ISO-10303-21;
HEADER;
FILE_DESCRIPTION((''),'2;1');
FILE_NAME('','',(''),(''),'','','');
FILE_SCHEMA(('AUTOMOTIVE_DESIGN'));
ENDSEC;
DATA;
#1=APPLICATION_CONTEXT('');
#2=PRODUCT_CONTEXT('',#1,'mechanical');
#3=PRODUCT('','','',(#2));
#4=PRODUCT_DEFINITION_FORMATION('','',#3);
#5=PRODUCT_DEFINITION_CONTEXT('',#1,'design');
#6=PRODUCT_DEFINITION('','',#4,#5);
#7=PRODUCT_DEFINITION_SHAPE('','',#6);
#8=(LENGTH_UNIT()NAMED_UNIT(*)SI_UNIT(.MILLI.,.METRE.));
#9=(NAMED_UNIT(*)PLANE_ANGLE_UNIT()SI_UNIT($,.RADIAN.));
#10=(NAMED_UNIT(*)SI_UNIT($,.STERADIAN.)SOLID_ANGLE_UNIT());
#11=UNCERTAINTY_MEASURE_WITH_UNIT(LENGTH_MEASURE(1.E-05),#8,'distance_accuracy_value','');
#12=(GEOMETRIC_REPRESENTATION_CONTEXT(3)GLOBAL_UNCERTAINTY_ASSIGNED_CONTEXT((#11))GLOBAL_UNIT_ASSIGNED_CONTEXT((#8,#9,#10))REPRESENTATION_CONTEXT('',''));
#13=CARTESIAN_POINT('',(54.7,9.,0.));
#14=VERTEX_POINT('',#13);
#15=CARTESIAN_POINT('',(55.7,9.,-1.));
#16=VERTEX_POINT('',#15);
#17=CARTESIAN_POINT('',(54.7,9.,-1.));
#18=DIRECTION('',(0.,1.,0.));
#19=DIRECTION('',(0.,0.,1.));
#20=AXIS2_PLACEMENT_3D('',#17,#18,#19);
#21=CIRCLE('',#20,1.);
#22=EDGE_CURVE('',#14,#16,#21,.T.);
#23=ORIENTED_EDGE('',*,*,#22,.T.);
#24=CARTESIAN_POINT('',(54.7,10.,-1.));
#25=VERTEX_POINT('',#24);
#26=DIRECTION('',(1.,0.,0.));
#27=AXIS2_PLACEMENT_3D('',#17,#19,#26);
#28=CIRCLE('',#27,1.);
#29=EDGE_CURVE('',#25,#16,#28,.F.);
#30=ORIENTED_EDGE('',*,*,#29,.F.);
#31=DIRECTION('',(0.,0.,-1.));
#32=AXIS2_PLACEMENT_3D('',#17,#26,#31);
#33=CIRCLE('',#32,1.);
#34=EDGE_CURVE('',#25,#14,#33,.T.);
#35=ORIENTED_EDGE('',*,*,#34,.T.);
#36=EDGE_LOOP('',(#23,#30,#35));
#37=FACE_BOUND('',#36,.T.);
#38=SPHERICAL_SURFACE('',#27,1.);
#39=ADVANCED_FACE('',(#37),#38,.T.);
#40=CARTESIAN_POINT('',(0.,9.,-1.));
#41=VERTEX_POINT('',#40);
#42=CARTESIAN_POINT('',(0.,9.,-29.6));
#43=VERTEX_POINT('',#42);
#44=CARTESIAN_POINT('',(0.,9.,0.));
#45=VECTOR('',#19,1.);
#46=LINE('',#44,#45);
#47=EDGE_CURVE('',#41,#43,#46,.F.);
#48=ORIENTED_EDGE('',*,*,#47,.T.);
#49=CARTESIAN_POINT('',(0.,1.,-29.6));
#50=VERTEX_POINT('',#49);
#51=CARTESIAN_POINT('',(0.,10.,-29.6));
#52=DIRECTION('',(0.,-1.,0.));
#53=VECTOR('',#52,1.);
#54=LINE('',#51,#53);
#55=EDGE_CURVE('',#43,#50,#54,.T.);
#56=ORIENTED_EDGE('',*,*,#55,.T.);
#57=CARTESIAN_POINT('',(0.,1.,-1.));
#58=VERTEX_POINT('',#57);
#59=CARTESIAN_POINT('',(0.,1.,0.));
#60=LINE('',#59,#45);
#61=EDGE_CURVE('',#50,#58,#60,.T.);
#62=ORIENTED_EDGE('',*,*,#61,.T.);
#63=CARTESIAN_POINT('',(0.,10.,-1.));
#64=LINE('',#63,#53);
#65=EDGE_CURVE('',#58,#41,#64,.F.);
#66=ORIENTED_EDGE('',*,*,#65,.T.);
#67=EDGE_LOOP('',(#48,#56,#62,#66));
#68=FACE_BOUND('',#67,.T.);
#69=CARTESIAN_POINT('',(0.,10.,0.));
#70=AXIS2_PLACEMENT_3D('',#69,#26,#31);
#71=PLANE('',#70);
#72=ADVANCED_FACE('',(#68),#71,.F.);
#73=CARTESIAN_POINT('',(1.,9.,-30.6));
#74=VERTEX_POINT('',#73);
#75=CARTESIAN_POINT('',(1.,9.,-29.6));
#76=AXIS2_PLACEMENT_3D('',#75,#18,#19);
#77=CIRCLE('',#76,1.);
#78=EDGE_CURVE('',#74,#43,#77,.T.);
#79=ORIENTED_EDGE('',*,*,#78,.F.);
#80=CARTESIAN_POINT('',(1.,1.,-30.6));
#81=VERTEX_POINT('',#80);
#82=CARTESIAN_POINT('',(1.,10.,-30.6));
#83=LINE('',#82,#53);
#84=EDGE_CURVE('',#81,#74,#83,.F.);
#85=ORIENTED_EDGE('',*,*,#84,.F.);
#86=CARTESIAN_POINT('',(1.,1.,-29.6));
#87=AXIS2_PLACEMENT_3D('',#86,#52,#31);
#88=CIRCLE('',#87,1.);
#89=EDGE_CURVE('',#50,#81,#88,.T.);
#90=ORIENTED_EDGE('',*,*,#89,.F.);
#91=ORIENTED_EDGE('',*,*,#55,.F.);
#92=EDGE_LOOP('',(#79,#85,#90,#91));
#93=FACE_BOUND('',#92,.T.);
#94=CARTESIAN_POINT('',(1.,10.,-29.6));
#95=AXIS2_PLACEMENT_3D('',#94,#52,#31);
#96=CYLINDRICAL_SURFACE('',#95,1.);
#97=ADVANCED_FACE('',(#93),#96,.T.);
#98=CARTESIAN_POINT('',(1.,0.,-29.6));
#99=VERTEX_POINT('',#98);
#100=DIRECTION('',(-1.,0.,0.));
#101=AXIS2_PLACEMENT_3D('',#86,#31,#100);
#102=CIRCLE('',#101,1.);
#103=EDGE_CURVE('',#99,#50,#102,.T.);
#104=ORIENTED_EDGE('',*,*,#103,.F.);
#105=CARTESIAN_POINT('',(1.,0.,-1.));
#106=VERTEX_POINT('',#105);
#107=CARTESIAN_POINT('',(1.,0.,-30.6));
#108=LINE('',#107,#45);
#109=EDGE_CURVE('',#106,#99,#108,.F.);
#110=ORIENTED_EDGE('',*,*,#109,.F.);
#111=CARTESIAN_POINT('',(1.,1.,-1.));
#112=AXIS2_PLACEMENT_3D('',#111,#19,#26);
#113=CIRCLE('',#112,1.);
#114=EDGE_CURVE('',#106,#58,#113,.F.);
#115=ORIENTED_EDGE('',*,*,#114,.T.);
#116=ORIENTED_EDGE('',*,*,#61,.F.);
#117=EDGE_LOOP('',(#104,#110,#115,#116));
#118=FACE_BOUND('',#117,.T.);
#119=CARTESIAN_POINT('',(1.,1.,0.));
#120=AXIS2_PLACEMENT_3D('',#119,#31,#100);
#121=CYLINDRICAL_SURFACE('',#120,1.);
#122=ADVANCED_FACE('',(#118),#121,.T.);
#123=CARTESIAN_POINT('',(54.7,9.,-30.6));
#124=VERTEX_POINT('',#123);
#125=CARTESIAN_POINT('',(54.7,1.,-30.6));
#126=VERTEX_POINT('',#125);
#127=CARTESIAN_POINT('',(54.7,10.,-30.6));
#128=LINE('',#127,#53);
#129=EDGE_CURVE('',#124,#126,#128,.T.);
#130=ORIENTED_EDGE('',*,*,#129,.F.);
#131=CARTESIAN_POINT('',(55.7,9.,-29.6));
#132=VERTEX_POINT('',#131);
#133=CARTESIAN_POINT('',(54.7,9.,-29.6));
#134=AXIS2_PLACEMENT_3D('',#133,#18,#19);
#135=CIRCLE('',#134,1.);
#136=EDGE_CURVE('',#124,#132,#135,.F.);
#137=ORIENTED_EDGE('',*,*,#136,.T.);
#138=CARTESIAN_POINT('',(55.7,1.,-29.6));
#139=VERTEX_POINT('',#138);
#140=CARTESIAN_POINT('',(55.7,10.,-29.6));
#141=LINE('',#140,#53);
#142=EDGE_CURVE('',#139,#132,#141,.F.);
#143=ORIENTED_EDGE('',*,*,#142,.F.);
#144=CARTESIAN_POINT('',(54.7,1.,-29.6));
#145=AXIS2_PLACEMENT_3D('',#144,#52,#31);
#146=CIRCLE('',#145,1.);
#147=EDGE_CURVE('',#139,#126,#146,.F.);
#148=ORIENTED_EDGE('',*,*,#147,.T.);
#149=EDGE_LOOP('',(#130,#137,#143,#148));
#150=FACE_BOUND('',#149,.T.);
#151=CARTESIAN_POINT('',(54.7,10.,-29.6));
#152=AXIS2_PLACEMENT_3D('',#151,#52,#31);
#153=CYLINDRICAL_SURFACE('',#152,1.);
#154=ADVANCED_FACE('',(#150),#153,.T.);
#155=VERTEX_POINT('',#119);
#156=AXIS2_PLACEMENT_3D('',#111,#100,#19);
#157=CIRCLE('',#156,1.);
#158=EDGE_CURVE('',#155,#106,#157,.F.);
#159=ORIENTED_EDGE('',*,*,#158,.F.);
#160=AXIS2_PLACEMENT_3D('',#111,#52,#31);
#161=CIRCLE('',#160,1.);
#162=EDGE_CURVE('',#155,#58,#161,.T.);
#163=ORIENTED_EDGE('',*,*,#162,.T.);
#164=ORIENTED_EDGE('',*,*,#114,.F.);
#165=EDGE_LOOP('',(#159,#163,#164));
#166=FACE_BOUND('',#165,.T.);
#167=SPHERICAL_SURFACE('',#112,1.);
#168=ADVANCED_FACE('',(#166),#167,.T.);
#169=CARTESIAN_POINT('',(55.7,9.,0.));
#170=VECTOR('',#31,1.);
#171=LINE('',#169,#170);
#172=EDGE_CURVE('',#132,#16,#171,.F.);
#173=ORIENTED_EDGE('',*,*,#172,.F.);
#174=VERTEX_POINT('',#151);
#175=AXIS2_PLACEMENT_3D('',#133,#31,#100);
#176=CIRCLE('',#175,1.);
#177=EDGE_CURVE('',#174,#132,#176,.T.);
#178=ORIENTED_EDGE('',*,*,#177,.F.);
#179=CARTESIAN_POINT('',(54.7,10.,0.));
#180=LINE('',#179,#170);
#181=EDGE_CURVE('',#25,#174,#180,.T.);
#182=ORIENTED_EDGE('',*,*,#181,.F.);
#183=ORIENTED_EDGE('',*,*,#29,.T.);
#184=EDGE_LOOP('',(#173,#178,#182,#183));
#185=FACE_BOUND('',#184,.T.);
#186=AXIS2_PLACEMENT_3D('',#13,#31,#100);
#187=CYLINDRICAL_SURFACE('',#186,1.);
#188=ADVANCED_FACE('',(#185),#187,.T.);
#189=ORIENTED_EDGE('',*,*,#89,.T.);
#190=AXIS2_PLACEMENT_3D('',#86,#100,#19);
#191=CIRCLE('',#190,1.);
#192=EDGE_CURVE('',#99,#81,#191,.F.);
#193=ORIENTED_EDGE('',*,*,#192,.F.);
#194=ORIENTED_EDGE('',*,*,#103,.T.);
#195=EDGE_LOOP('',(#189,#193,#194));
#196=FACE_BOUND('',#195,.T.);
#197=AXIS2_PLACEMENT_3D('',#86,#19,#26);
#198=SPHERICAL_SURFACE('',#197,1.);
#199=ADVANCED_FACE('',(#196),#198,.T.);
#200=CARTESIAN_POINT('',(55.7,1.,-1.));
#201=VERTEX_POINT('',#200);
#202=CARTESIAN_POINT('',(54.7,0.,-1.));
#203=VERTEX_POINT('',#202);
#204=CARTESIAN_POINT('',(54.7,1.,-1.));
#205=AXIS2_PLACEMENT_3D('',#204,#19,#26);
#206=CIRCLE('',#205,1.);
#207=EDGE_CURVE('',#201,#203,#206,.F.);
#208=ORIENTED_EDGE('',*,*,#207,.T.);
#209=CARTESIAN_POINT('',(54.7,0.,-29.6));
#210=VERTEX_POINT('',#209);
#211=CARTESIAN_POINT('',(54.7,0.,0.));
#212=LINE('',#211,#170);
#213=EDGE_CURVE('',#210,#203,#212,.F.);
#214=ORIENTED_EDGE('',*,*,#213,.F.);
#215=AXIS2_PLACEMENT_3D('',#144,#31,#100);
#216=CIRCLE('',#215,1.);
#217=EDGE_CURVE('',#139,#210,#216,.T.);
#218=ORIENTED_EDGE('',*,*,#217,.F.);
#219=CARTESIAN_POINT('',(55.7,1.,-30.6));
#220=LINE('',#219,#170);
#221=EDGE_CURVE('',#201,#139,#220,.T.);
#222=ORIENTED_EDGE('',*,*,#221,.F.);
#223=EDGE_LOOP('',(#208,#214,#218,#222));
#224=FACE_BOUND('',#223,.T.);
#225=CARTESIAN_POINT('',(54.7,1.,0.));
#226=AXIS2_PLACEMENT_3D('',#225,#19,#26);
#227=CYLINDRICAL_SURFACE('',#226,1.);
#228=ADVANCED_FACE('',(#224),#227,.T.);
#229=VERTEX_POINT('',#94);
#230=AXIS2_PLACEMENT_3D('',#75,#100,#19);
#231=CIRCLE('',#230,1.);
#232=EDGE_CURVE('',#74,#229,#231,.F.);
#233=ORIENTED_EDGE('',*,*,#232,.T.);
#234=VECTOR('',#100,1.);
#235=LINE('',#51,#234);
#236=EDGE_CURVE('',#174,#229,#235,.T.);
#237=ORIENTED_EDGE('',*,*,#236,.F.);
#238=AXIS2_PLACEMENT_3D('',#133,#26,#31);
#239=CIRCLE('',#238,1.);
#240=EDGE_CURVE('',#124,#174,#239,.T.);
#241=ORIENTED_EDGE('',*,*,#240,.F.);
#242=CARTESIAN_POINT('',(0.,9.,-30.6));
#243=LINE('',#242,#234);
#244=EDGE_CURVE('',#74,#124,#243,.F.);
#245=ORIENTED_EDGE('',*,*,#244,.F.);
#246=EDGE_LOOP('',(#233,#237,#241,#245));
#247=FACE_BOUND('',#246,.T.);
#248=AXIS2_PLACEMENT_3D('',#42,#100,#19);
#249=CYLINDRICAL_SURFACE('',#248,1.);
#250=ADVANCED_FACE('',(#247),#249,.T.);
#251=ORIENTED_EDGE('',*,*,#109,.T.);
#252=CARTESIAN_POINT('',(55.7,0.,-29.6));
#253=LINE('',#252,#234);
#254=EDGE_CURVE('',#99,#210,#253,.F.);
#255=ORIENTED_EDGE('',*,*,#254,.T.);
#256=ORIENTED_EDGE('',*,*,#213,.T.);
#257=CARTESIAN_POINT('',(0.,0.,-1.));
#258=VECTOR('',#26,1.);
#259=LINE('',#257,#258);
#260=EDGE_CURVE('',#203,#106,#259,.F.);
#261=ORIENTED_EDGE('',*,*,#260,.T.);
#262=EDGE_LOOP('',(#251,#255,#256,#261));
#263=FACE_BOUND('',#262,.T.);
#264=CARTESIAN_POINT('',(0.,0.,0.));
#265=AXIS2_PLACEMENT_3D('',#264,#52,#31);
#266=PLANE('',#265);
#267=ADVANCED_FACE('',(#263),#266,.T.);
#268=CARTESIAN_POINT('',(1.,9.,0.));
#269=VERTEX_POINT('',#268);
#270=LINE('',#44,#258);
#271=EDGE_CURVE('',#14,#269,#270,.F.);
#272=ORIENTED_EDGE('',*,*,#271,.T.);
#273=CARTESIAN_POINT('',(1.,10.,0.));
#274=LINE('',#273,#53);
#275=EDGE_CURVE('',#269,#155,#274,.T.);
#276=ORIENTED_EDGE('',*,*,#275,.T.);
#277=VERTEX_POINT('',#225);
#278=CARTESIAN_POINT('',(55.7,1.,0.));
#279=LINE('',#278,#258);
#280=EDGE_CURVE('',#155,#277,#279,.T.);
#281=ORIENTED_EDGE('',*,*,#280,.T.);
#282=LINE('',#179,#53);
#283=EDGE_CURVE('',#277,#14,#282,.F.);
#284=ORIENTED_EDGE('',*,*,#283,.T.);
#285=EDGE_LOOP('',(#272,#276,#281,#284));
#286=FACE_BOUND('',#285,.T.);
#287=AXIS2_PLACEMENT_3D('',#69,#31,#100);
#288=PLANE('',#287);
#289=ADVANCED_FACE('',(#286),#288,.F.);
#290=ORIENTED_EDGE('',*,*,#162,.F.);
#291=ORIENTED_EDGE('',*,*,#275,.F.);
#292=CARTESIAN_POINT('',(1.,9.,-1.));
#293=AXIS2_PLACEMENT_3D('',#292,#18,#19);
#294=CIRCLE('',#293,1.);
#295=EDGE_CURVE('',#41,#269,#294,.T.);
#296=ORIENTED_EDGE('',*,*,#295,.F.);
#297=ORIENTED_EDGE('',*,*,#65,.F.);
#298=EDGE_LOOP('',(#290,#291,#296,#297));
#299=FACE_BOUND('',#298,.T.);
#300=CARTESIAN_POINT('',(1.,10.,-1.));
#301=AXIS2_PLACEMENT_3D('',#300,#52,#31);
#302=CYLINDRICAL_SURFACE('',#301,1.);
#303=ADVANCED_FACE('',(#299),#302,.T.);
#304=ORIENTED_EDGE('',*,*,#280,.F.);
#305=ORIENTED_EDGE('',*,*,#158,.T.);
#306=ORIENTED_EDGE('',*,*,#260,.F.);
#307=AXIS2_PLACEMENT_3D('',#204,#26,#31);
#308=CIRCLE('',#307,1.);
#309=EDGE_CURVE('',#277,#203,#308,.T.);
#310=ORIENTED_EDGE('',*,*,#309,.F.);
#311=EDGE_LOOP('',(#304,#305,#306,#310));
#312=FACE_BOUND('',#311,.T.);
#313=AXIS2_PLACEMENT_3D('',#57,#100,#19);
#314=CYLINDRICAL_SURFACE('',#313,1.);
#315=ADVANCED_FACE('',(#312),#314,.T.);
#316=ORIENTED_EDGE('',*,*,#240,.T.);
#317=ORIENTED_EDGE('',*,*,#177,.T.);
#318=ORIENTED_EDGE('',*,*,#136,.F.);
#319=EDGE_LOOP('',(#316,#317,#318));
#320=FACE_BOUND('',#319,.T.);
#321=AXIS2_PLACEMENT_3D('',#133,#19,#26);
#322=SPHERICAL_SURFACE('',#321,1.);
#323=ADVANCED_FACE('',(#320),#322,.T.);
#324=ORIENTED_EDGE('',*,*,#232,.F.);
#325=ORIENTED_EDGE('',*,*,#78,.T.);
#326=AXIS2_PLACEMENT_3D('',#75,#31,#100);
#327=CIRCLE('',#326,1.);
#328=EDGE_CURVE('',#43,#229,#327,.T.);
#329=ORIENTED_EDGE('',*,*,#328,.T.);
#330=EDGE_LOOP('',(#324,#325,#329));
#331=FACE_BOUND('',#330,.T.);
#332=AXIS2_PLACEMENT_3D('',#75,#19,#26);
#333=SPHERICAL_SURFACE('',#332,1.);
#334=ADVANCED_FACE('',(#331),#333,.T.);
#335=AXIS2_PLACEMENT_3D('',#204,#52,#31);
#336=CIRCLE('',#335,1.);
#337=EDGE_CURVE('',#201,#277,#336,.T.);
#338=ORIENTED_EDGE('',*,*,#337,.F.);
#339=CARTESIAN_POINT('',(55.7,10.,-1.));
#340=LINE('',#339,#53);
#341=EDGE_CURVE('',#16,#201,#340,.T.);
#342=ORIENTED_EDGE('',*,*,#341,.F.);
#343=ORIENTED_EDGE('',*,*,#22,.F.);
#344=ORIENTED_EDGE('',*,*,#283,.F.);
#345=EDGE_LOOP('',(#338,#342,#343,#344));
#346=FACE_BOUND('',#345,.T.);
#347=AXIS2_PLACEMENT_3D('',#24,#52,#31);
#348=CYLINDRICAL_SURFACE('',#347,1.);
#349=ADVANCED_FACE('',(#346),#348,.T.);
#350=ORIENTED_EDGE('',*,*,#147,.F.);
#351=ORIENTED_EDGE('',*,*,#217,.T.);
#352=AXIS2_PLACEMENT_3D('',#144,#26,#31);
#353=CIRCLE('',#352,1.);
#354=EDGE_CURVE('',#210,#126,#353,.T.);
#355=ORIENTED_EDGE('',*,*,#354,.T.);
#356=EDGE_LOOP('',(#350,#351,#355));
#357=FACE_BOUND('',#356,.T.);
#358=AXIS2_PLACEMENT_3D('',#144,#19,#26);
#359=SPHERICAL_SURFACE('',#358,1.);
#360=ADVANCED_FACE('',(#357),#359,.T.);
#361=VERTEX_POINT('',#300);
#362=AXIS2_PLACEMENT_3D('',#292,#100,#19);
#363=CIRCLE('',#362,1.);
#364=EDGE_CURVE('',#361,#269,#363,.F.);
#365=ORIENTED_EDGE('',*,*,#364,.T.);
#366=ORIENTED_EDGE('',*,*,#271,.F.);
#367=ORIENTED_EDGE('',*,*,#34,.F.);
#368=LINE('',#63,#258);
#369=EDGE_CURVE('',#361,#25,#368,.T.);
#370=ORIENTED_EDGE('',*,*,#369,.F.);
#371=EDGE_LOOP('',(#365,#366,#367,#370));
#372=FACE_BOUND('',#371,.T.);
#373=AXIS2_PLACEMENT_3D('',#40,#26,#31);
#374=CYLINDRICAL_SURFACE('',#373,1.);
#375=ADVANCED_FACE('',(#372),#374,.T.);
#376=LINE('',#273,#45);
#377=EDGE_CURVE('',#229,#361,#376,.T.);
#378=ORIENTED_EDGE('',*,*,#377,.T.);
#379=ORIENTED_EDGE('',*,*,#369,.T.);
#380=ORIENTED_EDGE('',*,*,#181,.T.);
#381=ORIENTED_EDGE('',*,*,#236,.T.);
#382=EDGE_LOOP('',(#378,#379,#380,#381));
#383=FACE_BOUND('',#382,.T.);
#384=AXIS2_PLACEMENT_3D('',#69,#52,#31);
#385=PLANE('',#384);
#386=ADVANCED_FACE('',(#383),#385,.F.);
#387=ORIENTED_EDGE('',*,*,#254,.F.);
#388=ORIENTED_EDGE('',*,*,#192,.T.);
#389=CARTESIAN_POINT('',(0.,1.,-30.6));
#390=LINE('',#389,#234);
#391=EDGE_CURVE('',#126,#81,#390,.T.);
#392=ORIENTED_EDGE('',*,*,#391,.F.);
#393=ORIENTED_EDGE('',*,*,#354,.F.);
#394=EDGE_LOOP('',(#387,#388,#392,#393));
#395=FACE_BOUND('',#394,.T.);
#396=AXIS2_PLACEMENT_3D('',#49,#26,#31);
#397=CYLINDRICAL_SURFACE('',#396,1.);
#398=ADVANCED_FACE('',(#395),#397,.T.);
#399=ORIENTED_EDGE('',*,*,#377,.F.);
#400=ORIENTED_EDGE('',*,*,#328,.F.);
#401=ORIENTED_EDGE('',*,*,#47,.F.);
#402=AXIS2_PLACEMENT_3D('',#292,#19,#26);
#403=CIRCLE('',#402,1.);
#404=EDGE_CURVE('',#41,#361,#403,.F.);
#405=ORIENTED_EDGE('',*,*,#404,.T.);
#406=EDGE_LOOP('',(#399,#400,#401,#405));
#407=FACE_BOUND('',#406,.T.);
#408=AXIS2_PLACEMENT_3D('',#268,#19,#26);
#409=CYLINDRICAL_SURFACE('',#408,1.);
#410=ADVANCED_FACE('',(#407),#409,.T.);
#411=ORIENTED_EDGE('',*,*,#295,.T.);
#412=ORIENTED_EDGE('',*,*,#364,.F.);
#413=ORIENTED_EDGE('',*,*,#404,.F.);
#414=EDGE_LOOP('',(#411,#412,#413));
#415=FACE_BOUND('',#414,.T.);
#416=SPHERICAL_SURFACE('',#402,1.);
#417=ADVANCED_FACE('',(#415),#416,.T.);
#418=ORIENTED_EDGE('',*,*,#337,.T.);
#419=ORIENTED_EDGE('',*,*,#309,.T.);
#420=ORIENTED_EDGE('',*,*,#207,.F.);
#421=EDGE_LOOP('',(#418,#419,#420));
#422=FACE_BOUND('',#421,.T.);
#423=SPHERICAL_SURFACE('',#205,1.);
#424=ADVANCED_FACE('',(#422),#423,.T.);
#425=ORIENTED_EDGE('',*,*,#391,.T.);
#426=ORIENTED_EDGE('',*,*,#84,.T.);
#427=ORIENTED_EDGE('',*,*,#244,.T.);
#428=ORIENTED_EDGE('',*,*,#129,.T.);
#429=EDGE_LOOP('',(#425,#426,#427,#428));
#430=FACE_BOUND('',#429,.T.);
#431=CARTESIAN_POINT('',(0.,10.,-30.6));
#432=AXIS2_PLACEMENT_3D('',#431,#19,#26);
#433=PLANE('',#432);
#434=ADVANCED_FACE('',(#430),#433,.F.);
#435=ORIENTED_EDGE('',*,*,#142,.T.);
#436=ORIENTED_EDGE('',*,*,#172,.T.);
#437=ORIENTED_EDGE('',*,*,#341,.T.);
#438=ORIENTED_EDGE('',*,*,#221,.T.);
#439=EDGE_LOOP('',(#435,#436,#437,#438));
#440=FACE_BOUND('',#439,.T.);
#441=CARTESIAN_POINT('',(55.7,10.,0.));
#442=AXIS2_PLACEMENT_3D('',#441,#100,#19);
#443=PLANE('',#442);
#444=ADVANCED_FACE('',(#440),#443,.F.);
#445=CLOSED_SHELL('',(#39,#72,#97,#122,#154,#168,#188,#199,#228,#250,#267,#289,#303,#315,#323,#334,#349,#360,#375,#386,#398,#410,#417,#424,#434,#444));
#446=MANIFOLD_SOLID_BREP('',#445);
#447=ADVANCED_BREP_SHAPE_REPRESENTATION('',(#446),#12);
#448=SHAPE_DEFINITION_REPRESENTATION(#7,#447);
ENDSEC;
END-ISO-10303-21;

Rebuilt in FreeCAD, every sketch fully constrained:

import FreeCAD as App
import Part
import Sketcher
from FreeCAD import Vector
Q = App.Units.Quantity

doc = App.newDocument("Part")
params = doc.addObject("Spreadsheet::Sheet", "Params")
for row, (alias, value) in enumerate([
    ("sketch1_width", "55.7 mm"),
    ("sketch1_height", "30.6 mm"),
    ("pad1_length", "10 mm"),
    ("fillet_radius", "1 mm"),
], start=1):
    params.set(f"A{row}", alias)
    params.set(f"B{row}", "=" + value)
    params.setAlias(f"B{row}", alias)

body = doc.addObject("PartDesign::Body", "Body")

sketch1 = body.newObject("Sketcher::SketchObject", "Sketch")
sketch1.AttachmentSupport = (doc.getObject("XZ_Plane"), [""])
sketch1.MapMode = "FlatFace"
sketch1.addGeometry(Part.LineSegment(Vector(0, -30.6, 0), Vector(0, 0, 0)), False)
sketch1.addGeometry(Part.LineSegment(Vector(0, 0, 0), Vector(55.7, 0, 0)), False)
sketch1.addGeometry(Part.LineSegment(Vector(55.7, 0, 0), Vector(55.7, -30.6, 0)), False)
sketch1.addGeometry(Part.LineSegment(Vector(55.7, -30.6, 0), Vector(0, -30.6, 0)), False)
sketch1.addConstraint(Sketcher.Constraint("Coincident", 0, 2, 1, 1))
sketch1.addConstraint(Sketcher.Constraint("Coincident", 1, 2, 2, 1))
sketch1.addConstraint(Sketcher.Constraint("Coincident", 2, 2, 3, 1))
sketch1.addConstraint(Sketcher.Constraint("Coincident", 3, 2, 0, 1))
sketch1.addConstraint(Sketcher.Constraint("Vertical", 0))
sketch1.addConstraint(Sketcher.Constraint("Horizontal", 1))
sketch1.addConstraint(Sketcher.Constraint("Vertical", 2))
sketch1.addConstraint(Sketcher.Constraint("Horizontal", 3))
sketch1.addConstraint(Sketcher.Constraint("Coincident", 0, 2, -1, 1))
sketch1.addConstraint(Sketcher.Constraint("DistanceX", 1, 1, 1, 2, Q("55.7 mm")))
sketch1.addConstraint(Sketcher.Constraint("DistanceY", 0, 1, 0, 2, Q("30.6 mm")))
sketch1.setExpression("Constraints[9]", "Params.sketch1_width")
sketch1.setExpression("Constraints[10]", "Params.sketch1_height")
pad1 = body.newObject("PartDesign::Pad", "Pad")
pad1.Profile = sketch1
pad1.setExpression("Length", "Params.pad1_length")
pad1.Reversed = True
doc.recompute()

fillet = body.newObject("PartDesign::Fillet", "Fillet")
fillet.Base = (pad1, ["Edge1"])
fillet.UseAllEdges = True
fillet.setExpression("Radius", "Params.fillet_radius")

doc.recompute()
